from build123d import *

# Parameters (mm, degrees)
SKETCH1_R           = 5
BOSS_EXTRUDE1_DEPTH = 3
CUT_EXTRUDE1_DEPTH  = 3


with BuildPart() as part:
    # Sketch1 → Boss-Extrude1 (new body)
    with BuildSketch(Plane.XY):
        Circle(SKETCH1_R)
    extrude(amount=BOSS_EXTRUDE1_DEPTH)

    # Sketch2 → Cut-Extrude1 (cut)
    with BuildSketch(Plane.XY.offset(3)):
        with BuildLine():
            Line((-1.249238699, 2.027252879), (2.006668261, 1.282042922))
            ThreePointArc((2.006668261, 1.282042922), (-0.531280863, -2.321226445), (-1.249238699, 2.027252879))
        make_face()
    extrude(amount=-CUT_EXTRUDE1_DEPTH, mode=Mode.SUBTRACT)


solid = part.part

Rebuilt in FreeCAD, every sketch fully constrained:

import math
import FreeCAD as App
import Part
import Sketcher
from FreeCAD import Vector

doc = App.newDocument("Part")
body = doc.addObject("PartDesign::Body", "Body")

sketch1 = body.newObject("Sketcher::SketchObject", "Sketch")
sketch1.AttachmentSupport = (doc.getObject("XY_Plane"), [""])
sketch1.MapMode = "FlatFace"
sketch1.addGeometry(Part.Circle(Vector(0, 0, 0), Vector(0, 0, 1), 5), False)
sketch1.addConstraint([
    Sketcher.Constraint("Coincident", 0, 3, -1, 1),
    Sketcher.Constraint("Diameter", 0, 10.0),
])
pad1 = body.newObject("PartDesign::Pad", "Pad")
pad1.Profile = sketch1
pad1.Length = 3

sketch2 = body.newObject("Sketcher::SketchObject", "Sketch001")
sketch2.AttachmentSupport = (doc.getObject("XY_Plane"), [""])
sketch2.MapMode = "FlatFace"
sketch2.AttachmentOffset = App.Placement(Vector(0, 0, 3), App.Rotation())
sketch2.addGeometry([
    Part.LineSegment(Vector(2, 1.3, 0), Vector(-1.2, 2, 0)),
    Part.ArcOfCircle(Part.Circle(Vector(0, 0, 0), Vector(0, 0, 1), 2.4), math.radians(122), math.radians(393)),
], False)
sketch2.addConstraint([
    Sketcher.Constraint("Coincident", 0, 1, 1, 2),
    Sketcher.Constraint("Coincident", 1, 1, 0, 2),
    Sketcher.Constraint("Coincident", 1, 3, -1, 1),
    Sketcher.Constraint("Radius", 1, 2.38125),
    Sketcher.Constraint("Distance", 0, 3.3401),
    Sketcher.Constraint("DistanceX", -1, 1, 0, 1, 2.006668),
])
pocket1 = body.newObject("PartDesign::Pocket", "Pocket")
pocket1.Profile = sketch2
pocket1.Length = 3

doc.recompute()
